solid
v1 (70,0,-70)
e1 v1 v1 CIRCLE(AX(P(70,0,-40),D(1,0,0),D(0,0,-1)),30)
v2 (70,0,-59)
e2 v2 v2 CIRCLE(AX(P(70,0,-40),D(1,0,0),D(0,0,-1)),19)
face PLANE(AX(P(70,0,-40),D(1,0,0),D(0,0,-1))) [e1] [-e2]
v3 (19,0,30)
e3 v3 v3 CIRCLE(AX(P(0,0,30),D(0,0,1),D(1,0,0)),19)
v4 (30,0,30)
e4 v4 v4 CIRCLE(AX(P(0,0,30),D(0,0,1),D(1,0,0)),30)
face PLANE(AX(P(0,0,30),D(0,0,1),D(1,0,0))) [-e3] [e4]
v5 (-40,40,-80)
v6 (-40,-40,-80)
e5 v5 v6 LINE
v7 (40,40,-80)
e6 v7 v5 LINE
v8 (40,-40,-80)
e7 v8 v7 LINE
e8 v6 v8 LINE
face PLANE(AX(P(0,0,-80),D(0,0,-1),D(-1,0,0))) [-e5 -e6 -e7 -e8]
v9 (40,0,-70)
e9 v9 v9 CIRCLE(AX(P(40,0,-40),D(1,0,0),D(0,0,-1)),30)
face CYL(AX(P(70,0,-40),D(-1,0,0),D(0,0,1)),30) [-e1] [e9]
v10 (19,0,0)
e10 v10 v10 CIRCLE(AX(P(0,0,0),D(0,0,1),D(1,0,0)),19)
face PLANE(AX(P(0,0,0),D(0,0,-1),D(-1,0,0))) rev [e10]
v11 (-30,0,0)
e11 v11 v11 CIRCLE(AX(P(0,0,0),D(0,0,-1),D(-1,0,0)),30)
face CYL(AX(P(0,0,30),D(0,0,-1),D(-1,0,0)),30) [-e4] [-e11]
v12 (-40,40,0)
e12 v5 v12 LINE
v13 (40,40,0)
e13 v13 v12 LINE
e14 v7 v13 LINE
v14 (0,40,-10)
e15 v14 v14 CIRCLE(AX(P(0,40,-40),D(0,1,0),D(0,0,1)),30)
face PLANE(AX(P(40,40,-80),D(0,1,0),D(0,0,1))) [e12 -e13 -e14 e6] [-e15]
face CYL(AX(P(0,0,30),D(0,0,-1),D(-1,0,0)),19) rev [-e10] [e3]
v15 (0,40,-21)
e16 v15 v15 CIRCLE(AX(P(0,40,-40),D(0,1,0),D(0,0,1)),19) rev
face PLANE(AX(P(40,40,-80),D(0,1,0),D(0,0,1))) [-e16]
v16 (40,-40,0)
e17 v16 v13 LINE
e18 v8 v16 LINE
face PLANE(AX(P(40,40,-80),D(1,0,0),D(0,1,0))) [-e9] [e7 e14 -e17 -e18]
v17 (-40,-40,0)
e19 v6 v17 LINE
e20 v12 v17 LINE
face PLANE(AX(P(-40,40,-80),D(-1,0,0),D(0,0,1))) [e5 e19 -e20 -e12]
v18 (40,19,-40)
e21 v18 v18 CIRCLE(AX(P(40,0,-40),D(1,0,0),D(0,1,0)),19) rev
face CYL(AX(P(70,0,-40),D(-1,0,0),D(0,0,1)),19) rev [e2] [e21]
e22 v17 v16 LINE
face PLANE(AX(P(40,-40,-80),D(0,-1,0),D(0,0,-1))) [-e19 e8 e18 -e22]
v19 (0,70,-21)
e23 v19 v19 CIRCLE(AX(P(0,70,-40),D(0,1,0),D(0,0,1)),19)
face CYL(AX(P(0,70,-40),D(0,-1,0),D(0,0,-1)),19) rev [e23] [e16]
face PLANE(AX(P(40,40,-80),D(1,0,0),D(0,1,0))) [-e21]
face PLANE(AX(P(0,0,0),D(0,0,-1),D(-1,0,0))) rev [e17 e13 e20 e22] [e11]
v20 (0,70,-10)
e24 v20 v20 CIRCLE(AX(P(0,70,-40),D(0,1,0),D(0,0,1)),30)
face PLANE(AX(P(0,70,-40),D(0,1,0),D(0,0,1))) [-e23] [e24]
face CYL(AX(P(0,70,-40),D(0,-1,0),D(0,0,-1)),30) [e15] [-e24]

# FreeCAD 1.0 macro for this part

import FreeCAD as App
import Part
import Sketcher

V = App.Vector
Q = App.Units.Quantity

doc = App.newDocument("Part")
body = doc.addObject("PartDesign::Body", "Body")

# Sketch on XY plane
sketch1 = body.newObject("Sketcher::SketchObject", "Sketch")
sketch1.AttachmentSupport = (doc.getObject("XY_Plane"), [""])
sketch1.MapMode = "FlatFace"
sketch1.addGeometry(Part.Circle(V(0, 0, 0), V(0, 0, 1), 30), False)
sketch1.addGeometry(Part.Circle(V(0, 0, 0), V(0, 0, 1), 19), False)
sketch1.addConstraint(Sketcher.Constraint("Coincident", 0, 3, -1, 1))
sketch1.addConstraint(Sketcher.Constraint("Coincident", 1, 3, -1, 1))
sketch1.addConstraint(Sketcher.Constraint("Diameter", 0, Q("60 mm")))
sketch1.addConstraint(Sketcher.Constraint("Diameter", 1, Q("38 mm")))
pad1 = body.newObject("PartDesign::Pad", "Pad")
pad1.Profile = sketch1
pad1.Length = 30

# Sketch on XY plane
sketch2 = body.newObject("Sketcher::SketchObject", "Sketch001")
sketch2.AttachmentSupport = (doc.getObject("XY_Plane"), [""])
sketch2.MapMode = "FlatFace"
sketch2.addGeometry(Part.LineSegment(V(-40, 40, 0), V(-40, -40, 0)), False)
sketch2.addGeometry(Part.LineSegment(V(-40, -40, 0), V(40, -40, 0)), False)
sketch2.addGeometry(Part.LineSegment(V(40, -40, 0), V(40, 40, 0)), False)
sketch2.addGeometry(Part.LineSegment(V(40, 40, 0), V(-40, 40, 0)), False)
sketch2.addConstraint(Sketcher.Constraint("Coincident", 0, 2, 1, 1))
sketch2.addConstraint(Sketcher.Constraint("Coincident", 1, 2, 2, 1))
sketch2.addConstraint(Sketcher.Constraint("Coincident", 2, 2, 3, 1))
sketch2.addConstraint(Sketcher.Constraint("Coincident", 3, 2, 0, 1))
sketch2.addConstraint(Sketcher.Constraint("Vertical", 0))
sketch2.addConstraint(Sketcher.Constraint("Horizontal", 1))
sketch2.addConstraint(Sketcher.Constraint("Vertical", 2))
sketch2.addConstraint(Sketcher.Constraint("Horizontal", 3))
sketch2.addConstraint(Sketcher.Constraint("Symmetric", 0, 2, 2, 2, -1, 1))
sketch2.addConstraint(Sketcher.Constraint("Equal", 3, 0))
sketch2.addConstraint(Sketcher.Constraint("DistanceX", 1, 1, 1, 2, Q("80 mm")))
pad2 = body.newObject("PartDesign::Pad", "Pad001")
pad2.Profile = sketch2
pad2.Length = 80
pad2.Reversed = True

# Sketch on YZ plane
sketch3 = body.newObject("Sketcher::SketchObject", "Sketch002")
sketch3.AttachmentSupport = (doc.getObject("YZ_Plane"), [""])
sketch3.MapMode = "FlatFace"
sketch3.AttachmentOffset = App.Placement(V(0, 0, 40), App.Rotation())
sketch3.addGeometry(Part.Circle(V(0, -40, 0), V(0, 0, 1), 30), False)
sketch3.addGeometry(Part.Circle(V(0, -40, 0), V(0, 0, 1), 19), False)
sketch3.addConstraint(Sketcher.Constraint("Coincident", 1, 3, 0, 3))
sketch3.addConstraint(Sketcher.Constraint("PointOnObject", 0, 3, -2))
sketch3.addConstraint(Sketcher.Constraint("Diameter", 0, Q("60 mm")))
sketch3.addConstraint(Sketcher.Constraint("Diameter", 1, Q("38 mm")))
sketch3.addConstraint(Sketcher.Constraint("DistanceY", 0, 3, -1, 1, Q("40 mm")))
pad3 = body.newObject("PartDesign::Pad", "Pad002")
pad3.Profile = sketch3
pad3.Length = 30

# Sketch on XZ plane
sketch4 = body.newObject("Sketcher::SketchObject", "Sketch003")
sketch4.AttachmentSupport = (doc.getObject("XZ_Plane"), [""])
sketch4.MapMode = "FlatFace"
sketch4.AttachmentOffset = App.Placement(V(0, 0, -40), App.Rotation())
sketch4.addGeometry(Part.Circle(V(0, -40, 0), V(0, 0, 1), 30), False)
sketch4.addGeometry(Part.Circle(V(0, -40, 0), V(0, 0, 1), 19), False)
sketch4.addConstraint(Sketcher.Constraint("Coincident", 1, 3, 0, 3))
sketch4.addConstraint(Sketcher.Constraint("PointOnObject", 0, 3, -2))
sketch4.addConstraint(Sketcher.Constraint("Diameter", 0, Q("60 mm")))
sketch4.addConstraint(Sketcher.Constraint("Diameter", 1, Q("38 mm")))
sketch4.addConstraint(Sketcher.Constraint("DistanceY", 0, 3, -1, 1, Q("40 mm")))
pad4 = body.newObject("PartDesign::Pad", "Pad003")
pad4.Profile = sketch4
pad4.Length = 30
pad4.Reversed = True

doc.recompute()
